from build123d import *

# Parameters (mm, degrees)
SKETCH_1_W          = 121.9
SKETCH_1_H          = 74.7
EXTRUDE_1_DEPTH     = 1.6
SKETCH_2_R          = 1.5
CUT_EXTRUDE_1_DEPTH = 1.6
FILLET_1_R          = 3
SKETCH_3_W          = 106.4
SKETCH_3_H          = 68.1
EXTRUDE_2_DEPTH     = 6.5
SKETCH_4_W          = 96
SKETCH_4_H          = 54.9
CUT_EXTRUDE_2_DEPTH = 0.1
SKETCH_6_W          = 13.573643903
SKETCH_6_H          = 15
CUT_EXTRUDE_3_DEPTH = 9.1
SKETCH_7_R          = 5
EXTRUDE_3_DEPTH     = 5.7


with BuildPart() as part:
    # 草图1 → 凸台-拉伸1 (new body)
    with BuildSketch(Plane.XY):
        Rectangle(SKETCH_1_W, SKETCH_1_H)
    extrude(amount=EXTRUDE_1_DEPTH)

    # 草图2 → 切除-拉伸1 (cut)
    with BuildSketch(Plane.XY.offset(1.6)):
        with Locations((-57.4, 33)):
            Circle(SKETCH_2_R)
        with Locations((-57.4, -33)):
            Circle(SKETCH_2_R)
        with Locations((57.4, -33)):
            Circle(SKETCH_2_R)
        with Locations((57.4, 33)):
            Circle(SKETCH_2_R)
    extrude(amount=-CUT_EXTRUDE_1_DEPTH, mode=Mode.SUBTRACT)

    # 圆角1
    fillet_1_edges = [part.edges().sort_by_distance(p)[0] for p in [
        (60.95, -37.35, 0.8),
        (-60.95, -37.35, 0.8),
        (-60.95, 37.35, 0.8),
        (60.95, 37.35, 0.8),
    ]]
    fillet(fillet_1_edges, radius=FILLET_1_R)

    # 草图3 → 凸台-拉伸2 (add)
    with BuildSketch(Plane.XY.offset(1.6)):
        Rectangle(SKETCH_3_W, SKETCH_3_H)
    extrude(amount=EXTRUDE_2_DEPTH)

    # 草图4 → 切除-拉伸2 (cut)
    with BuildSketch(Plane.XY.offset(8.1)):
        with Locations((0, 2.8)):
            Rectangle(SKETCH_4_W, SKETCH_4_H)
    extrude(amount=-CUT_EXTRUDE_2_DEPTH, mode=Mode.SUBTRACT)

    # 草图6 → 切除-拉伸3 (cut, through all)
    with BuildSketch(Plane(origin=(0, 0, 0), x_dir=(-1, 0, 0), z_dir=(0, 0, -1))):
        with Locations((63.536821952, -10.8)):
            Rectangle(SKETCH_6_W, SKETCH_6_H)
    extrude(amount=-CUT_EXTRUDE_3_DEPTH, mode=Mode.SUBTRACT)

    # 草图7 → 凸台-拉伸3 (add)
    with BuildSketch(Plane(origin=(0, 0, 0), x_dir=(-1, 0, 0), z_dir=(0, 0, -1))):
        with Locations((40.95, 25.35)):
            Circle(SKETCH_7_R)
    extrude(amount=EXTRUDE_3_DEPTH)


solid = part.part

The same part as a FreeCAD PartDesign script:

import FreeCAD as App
import Part
import Sketcher
from FreeCAD import Vector


def edges_at(feature, points):
    """Names of the edges that pass closest to the given points."""
    edges = feature.Shape.Edges
    near = lambda p: min(range(len(edges)), key=lambda i: edges[i].distToShape(Part.Vertex(*p))[0])
    return sorted({f"Edge{near(p) + 1}" for p in points})


def add_polygon(sketch, points):
    """Adds a closed chain of lines whose ends are joined by coincident constraints."""
    first, n = sketch.GeometryCount, len(points)
    for a, b in zip(points, points[1:] + points[:1]):
        sketch.addGeometry(Part.LineSegment(App.Vector(*a, 0), App.Vector(*b, 0)), False)
    for i in range(n):
        sketch.addConstraint(Sketcher.Constraint("Coincident", first + i, 2, first + (i + 1) % n, 1))

doc = App.newDocument("Part")
params = doc.addObject("Spreadsheet::Sheet", "Params")
for row, (alias, value) in enumerate([
    ("sketch1_width", "121.9 mm"),
    ("sketch1_height", "74.7 mm"),
    ("pad1_length", "1.6 mm"),
    ("sketch2_diameter", "3 mm"),
    ("pocket1_length", "1.6 mm"),
    ("fillet_radius", "3 mm"),
    ("sketch3_width", "106.4 mm"),
    ("sketch3_height", "68.1 mm"),
    ("pad2_length", "6.5 mm"),
    ("sketch4_width", "96 mm"),
    ("sketch4_height", "54.9 mm"),
    ("pocket2_length", "0.1 mm"),
    ("sketch5_height", "15 mm"),
    ("sketch6_diameter", "10 mm"),
    ("pad3_length", "5.7 mm"),
], start=1):
    params.set(f"A{row}", alias)
    params.set(f"B{row}", "=" + value)
    params.setAlias(f"B{row}", alias)

body = doc.addObject("PartDesign::Body", "Body")

sketch1 = body.newObject("Sketcher::SketchObject", "Sketch")
sketch1.AttachmentSupport = (doc.getObject("XY_Plane"), [""])
sketch1.MapMode = "FlatFace"
add_polygon(sketch1, [(-61, 37), (-61, -37), (61, -37), (61, 37)])
sketch1.addConstraint([
    Sketcher.Constraint("Vertical", 0),
    Sketcher.Constraint("Horizontal", 1),
    Sketcher.Constraint("Vertical", 2),
    Sketcher.Constraint("Horizontal", 3),
    Sketcher.Constraint("Symmetric", 0, 2, 2, 2, -1, 1),
    Sketcher.Constraint("DistanceX", 1, 1, 1, 2, 121.9),
    Sketcher.Constraint("DistanceY", 0, 2, 0, 1, 74.7),
])
sketch1.setExpression("Constraints[9]", "Params.sketch1_width")
sketch1.setExpression("Constraints[10]", "Params.sketch1_height")
pad1 = body.newObject("PartDesign::Pad", "Pad")
pad1.Profile = sketch1
pad1.setExpression("Length", "Params.pad1_length")

sketch2 = body.newObject("Sketcher::SketchObject", "Sketch001")
sketch2.AttachmentSupport = (doc.getObject("XY_Plane"), [""])
sketch2.MapMode = "FlatFace"
sketch2.AttachmentOffset = App.Placement(Vector(0, 0, 1.6), App.Rotation())
sketch2.addGeometry([
    Part.Circle(Vector(-57.4, 33, 0), Vector(0, 0, 1), 1.5),
    Part.Circle(Vector(-57.4, -33, 0), Vector(0, 0, 1), 1.5),
    Part.Circle(Vector(57.4, -33, 0), Vector(0, 0, 1), 1.5),
    Part.Circle(Vector(57.4, 33, 0), Vector(0, 0, 1), 1.5),
], False)
sketch2.addConstraint([
    Sketcher.Constraint("Equal", 0, 1),
    Sketcher.Constraint("Equal", 1, 2),
    Sketcher.Constraint("Equal", 2, 3),
    Sketcher.Constraint("Symmetric", 0, 3, 2, 3, -1, 1),
    Sketcher.Constraint("Symmetric", 1, 3, 3, 3, -1, 1),
    Sketcher.Constraint("Symmetric", 1, 3, 2, 3, -2),
    Sketcher.Constraint("Diameter", 0, 3.0),
    Sketcher.Constraint("DistanceY", -1, 1, 0, 3, 33.0),
    Sketcher.Constraint("DistanceX", 0, 3, -1, 1, 57.4),
])
sketch2.setExpression("Constraints[6]", "Params.sketch2_diameter")
pocket1 = body.newObject("PartDesign::Pocket", "Pocket")
pocket1.Profile = sketch2
pocket1.setExpression("Length", "Params.pocket1_length")
doc.recompute()

fillet = body.newObject("PartDesign::Fillet", "Fillet")
fillet.Base = (pocket1, edges_at(pocket1, [
    (60.95, -37.35, 0.8),
    (-60.95, -37.35, 0.8),
    (-60.95, 37.35, 0.8),
    (60.95, 37.35, 0.8),
]))
fillet.setExpression("Radius", "Params.fillet_radius")

sketch3 = body.newObject("Sketcher::SketchObject", "Sketch002")
sketch3.AttachmentSupport = (doc.getObject("XY_Plane"), [""])
sketch3.MapMode = "FlatFace"
sketch3.AttachmentOffset = App.Placement(Vector(0, 0, 1.6), App.Rotation())
add_polygon(sketch3, [(-53, 34), (-53, -34), (53, -34), (53, 34)])
sketch3.addConstraint([
    Sketcher.Constraint("Vertical", 0),
    Sketcher.Constraint("Horizontal", 1),
    Sketcher.Constraint("Vertical", 2),
    Sketcher.Constraint("Horizontal", 3),
    Sketcher.Constraint("Symmetric", 0, 2, 2, 2, -1, 1),
    Sketcher.Constraint("DistanceX", 1, 1, 1, 2, 106.4),
    Sketcher.Constraint("DistanceY", 0, 2, 0, 1, 68.1),
])
sketch3.setExpression("Constraints[9]", "Params.sketch3_width")
sketch3.setExpression("Constraints[10]", "Params.sketch3_height")
pad2 = body.newObject("PartDesign::Pad", "Pad001")
pad2.Profile = sketch3
pad2.setExpression("Length", "Params.pad2_length")

sketch4 = body.newObject("Sketcher::SketchObject", "Sketch003")
sketch4.AttachmentSupport = (doc.getObject("XY_Plane"), [""])
sketch4.MapMode = "FlatFace"
sketch4.AttachmentOffset = App.Placement(Vector(0, 0, 8.1), App.Rotation())
add_polygon(sketch4, [(-48, 30), (-48, -25), (48, -25), (48, 30)])
sketch4.addConstraint([
    Sketcher.Constraint("Vertical", 0),
    Sketcher.Constraint("Horizontal", 1),
    Sketcher.Constraint("Vertical", 2),
    Sketcher.Constraint("Horizontal", 3),
    Sketcher.Constraint("DistanceX", 1, 1, 1, 2, 96.0),
    Sketcher.Constraint("DistanceY", 0, 2, 0, 1, 54.9),
    Sketcher.Constraint("DistanceX", 0, 2, -1, 1, 48.0),
    Sketcher.Constraint("DistanceY", 0, 2, -1, 1, 24.65),
])
sketch4.setExpression("Constraints[8]", "Params.sketch4_width")
sketch4.setExpression("Constraints[9]", "Params.sketch4_height")
pocket2 = body.newObject("PartDesign::Pocket", "Pocket001")
pocket2.Profile = sketch4
pocket2.setExpression("Length", "Params.pocket2_length")

sketch5 = body.newObject("Sketcher::SketchObject", "Sketch004")
sketch5.AttachmentSupport = (doc.getObject("XY_Plane"), [""])
sketch5.MapMode = "FlatFace"
add_polygon(sketch5, [(-57, -3), (-57, -18), (-70, -18), (-70, -3)])
sketch5.addConstraint([
    Sketcher.Constraint("Vertical", 0),
    Sketcher.Constraint("Horizontal", 1),
    Sketcher.Constraint("Vertical", 2),
    Sketcher.Constraint("Horizontal", 3),
    Sketcher.Constraint("DistanceY", 0, 2, 0, 1, 15.0),
    Sketcher.Constraint("DistanceY", 0, 2, -1, 1, 18.3),
    Sketcher.Constraint("DistanceX", 0, 2, -1, 1, 56.75),
    Sketcher.Constraint("DistanceX", 1, 2, 1, 1, 13.573644),
])
sketch5.setExpression("Constraints[8]", "Params.sketch5_height")
pocket3 = body.newObject("PartDesign::Pocket", "Pocket002")
pocket3.Profile = sketch5
pocket3.Type = "ThroughAll"
pocket3.Reversed = True

sketch6 = body.newObject("Sketcher::SketchObject", "Sketch005")
sketch6.AttachmentSupport = (doc.getObject("XY_Plane"), [""])
sketch6.MapMode = "FlatFace"
sketch6.addGeometry(Part.Circle(Vector(-41, 25, 0), Vector(0, 0, 1), 5), False)
sketch6.addConstraint([
    Sketcher.Constraint("Diameter", 0, 10.0),
    Sketcher.Constraint("DistanceX", 0, 3, -1, 1, 40.95),
    Sketcher.Constraint("DistanceY", -1, 1, 0, 3, 25.35),
])
sketch6.setExpression("Constraints[0]", "Params.sketch6_diameter")
pad3 = body.newObject("PartDesign::Pad", "Pad002")
pad3.Profile = sketch6
pad3.setExpression("Length", "Params.pad3_length")
pad3.Reversed = True

doc.recompute()
